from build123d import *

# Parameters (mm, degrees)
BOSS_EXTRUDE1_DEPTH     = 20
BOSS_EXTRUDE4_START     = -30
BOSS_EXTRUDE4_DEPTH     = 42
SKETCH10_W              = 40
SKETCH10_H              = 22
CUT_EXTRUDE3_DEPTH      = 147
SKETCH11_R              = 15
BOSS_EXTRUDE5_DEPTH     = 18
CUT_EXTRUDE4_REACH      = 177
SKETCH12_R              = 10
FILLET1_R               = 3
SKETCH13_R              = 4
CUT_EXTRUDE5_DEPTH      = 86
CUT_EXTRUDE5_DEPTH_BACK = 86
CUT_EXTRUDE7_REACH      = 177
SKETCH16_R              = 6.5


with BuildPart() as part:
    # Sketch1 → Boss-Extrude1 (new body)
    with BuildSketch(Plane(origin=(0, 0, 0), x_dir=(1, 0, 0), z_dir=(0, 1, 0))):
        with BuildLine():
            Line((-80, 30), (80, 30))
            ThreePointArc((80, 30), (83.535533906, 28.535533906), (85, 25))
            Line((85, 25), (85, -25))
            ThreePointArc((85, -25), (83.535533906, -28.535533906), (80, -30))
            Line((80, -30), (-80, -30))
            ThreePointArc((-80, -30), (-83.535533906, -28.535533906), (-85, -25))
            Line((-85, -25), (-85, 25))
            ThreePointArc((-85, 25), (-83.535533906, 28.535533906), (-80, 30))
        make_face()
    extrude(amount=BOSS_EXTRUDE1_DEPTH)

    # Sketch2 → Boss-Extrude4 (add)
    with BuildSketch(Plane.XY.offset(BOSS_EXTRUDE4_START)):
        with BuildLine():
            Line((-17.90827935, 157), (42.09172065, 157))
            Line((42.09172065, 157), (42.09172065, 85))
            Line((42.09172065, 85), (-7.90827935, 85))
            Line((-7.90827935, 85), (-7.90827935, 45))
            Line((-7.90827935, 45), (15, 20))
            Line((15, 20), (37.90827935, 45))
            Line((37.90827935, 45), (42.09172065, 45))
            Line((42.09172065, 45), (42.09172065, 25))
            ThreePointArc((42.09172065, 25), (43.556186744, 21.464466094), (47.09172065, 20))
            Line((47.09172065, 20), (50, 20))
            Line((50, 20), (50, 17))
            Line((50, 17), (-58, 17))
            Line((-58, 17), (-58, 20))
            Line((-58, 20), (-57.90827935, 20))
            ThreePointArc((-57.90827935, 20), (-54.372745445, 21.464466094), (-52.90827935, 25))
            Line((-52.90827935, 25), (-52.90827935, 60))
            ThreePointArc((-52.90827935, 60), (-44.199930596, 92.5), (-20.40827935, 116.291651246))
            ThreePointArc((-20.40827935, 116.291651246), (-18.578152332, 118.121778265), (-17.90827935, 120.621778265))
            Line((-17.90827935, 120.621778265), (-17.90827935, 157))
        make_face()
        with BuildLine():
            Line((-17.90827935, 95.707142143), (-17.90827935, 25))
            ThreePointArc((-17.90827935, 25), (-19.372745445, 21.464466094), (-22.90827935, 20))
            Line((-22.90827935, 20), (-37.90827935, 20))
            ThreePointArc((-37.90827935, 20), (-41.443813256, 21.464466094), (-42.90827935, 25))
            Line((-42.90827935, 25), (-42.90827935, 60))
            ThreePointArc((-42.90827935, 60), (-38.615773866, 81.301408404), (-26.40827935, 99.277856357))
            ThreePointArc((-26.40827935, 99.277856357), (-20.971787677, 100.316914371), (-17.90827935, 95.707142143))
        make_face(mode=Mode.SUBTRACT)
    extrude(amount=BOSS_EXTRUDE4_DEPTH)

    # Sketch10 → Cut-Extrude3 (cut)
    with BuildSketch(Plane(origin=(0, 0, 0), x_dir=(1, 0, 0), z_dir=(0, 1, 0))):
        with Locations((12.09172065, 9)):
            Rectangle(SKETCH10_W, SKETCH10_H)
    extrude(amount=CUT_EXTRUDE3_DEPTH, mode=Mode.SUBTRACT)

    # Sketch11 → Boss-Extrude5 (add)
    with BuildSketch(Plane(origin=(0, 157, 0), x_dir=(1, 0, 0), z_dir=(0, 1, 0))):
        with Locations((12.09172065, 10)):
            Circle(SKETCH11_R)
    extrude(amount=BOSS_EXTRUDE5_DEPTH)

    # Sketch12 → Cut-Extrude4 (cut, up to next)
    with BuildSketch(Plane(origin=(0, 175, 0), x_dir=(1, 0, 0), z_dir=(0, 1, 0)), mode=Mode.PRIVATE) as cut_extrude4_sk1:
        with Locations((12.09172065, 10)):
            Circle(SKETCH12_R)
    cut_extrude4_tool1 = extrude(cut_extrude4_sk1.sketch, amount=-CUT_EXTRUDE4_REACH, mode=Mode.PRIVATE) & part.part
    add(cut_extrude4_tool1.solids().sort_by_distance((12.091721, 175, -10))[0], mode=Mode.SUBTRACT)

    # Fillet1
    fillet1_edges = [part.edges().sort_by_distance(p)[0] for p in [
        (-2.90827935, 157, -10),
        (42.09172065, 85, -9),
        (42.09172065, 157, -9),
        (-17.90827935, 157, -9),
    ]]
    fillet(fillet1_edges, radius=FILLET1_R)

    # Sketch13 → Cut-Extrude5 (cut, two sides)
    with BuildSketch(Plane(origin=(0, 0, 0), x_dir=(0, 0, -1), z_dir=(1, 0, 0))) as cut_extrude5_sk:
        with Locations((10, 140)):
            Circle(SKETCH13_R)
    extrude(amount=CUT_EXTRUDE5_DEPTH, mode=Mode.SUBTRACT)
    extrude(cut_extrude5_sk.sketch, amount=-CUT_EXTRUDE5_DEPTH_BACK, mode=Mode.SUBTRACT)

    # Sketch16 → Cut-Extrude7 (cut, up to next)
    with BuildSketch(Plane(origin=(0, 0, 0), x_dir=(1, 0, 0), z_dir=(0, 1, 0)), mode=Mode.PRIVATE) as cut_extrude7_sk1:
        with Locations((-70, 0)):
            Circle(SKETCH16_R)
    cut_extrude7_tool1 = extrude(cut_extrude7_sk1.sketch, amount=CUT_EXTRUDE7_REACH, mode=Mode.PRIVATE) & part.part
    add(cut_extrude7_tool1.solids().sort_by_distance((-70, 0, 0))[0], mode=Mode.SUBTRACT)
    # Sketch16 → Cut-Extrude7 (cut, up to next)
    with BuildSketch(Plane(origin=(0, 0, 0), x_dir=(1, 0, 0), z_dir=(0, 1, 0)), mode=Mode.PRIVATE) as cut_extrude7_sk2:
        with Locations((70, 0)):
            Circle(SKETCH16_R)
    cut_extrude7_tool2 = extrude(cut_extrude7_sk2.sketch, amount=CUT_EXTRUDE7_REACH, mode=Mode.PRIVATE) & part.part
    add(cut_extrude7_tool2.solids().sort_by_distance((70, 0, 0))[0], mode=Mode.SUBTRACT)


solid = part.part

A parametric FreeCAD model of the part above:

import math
import FreeCAD as App
import Part
import Sketcher
Q = App.Units.Quantity


def edges_at(feature, points):
    """Names of the edges that pass closest to the given points."""
    edges = feature.Shape.Edges
    near = lambda p: min(range(len(edges)), key=lambda i: edges[i].distToShape(Part.Vertex(*p))[0])
    return sorted({f"Edge{near(p) + 1}" for p in points})

doc = App.newDocument("Part")
params = doc.addObject("Spreadsheet::Sheet", "Params")
for row, (alias, value) in enumerate([
    ("sketch1_radius", "5 mm"),
    ("sketch1_width", "160 mm"),
    ("sketch1_height", "50 mm"),
    ("pad1_length", "20 mm"),
    ("sketch2_radius", "5 mm"),
    ("sketch2_radius2", "65 mm"),
    ("sketch2_radius3", "55 mm"),
    ("sketch2_width", "60 mm"),
    ("sketch2_width2", "108 mm"),
    ("pad2_length", "42 mm"),
    ("sketch3_width", "40 mm"),
    ("sketch3_height", "22 mm"),
    ("pocket1_length", "147 mm"),
    ("sketch4_diameter", "30 mm"),
    ("pad3_length", "18 mm"),
    ("sketch5_diameter", "20 mm"),
    ("fillet_radius", "3 mm"),
    ("sketch6_diameter", "8 mm"),
    ("sketch7_diameter", "13 mm"),
    ("sketch8_diameter", "13 mm"),
], start=1):
    params.set(f"A{row}", alias)
    params.set(f"B{row}", "=" + value)
    params.setAlias(f"B{row}", alias)

body = doc.addObject("PartDesign::Body", "Body")

sketch1 = doc.addObject("Sketcher::SketchObject", "Sketch")
body.addObject(sketch1)
sketch1.AttachmentSupport = (doc.XZ_Plane, [""])
sketch1.MapMode = "FlatFace"
sketch1.addGeometry(Part.LineSegment(App.Vector(80, -30, 0), App.Vector(-80, -30, 0)), False)
sketch1.addGeometry(Part.ArcOfCircle(Part.Circle(App.Vector(-80, -25, 0), App.Vector(0, 0, 1), 5), math.radians(180), math.radians(270)), False)
sketch1.addGeometry(Part.LineSegment(App.Vector(-85, -25, 0), App.Vector(-85, 25, 0)), False)
sketch1.addGeometry(Part.ArcOfCircle(Part.Circle(App.Vector(-80, 25, 0), App.Vector(0, 0, 1), 5), math.radians(90), math.radians(180)), False)
sketch1.addGeometry(Part.LineSegment(App.Vector(-80, 30, 0), App.Vector(80, 30, 0)), False)
sketch1.addGeometry(Part.ArcOfCircle(Part.Circle(App.Vector(80, 25, 0), App.Vector(0, 0, 1), 5), math.radians(0), math.radians(90)), False)
sketch1.addGeometry(Part.LineSegment(App.Vector(85, 25, 0), App.Vector(85, -25, 0)), False)
sketch1.addGeometry(Part.ArcOfCircle(Part.Circle(App.Vector(80, -25, 0), App.Vector(0, 0, 1), 5), math.radians(-90), math.radians(0)), False)
sketch1.addConstraint(Sketcher.Constraint("Tangent", 0, 2, 1, 2))
sketch1.addConstraint(Sketcher.Constraint("Tangent", 1, 1, 2, 1))
sketch1.addConstraint(Sketcher.Constraint("Tangent", 2, 2, 3, 2))
sketch1.addConstraint(Sketcher.Constraint("Tangent", 3, 1, 4, 1))
sketch1.addConstraint(Sketcher.Constraint("Tangent", 4, 2, 5, 2))
sketch1.addConstraint(Sketcher.Constraint("Tangent", 5, 1, 6, 1))
sketch1.addConstraint(Sketcher.Constraint("Tangent", 6, 2, 7, 2))
sketch1.addConstraint(Sketcher.Constraint("Tangent", 7, 1, 0, 1))
sketch1.addConstraint(Sketcher.Constraint("Horizontal", 0))
sketch1.addConstraint(Sketcher.Constraint("Vertical", 2))
sketch1.addConstraint(Sketcher.Constraint("Horizontal", 4))
sketch1.addConstraint(Sketcher.Constraint("Vertical", 6))
sketch1.addConstraint(Sketcher.Constraint("Equal", 1, 3))
sketch1.addConstraint(Sketcher.Constraint("Equal", 3, 5))
sketch1.addConstraint(Sketcher.Constraint("Equal", 5, 7))
sketch1.addConstraint(Sketcher.Constraint("Symmetric", 1, 3, 5, 3, -1, 1))
sketch1.addConstraint(Sketcher.Constraint("Radius", 1, 5.0))
sketch1.addConstraint(Sketcher.Constraint("DistanceX", 0, 2, 0, 1, 160.0))
sketch1.addConstraint(Sketcher.Constraint("DistanceY", 2, 1, 2, 2, 50.0))
sketch1.setExpression("Constraints[16]", "Params.sketch1_radius")
sketch1.setExpression("Constraints[17]", "Params.sketch1_width")
sketch1.setExpression("Constraints[18]", "Params.sketch1_height")
pad1 = doc.addObject("PartDesign::Pad", "Pad")
body.addObject(pad1)
pad1.Profile = sketch1
pad1.setExpression("Length", "Params.pad1_length")
pad1.Reversed = True

sketch2 = doc.addObject("Sketcher::SketchObject", "Sketch001")
body.addObject(sketch2)
sketch2.AttachmentSupport = (doc.XY_Plane, [""])
sketch2.MapMode = "FlatFace"
sketch2.AttachmentOffset = App.Placement(App.Vector(0, 0, -30), App.Rotation())
sketch2.addGeometry(Part.LineSegment(App.Vector(42.09, 157, 0), App.Vector(-17.91, 157, 0)), False)
sketch2.addGeometry(Part.LineSegment(App.Vector(-17.91, 157, 0), App.Vector(-17.91, 120.62, 0)), False)
sketch2.addGeometry(Part.ArcOfCircle(Part.Circle(App.Vector(-22.91, 120.62, 0), App.Vector(0, 0, 1), 5), math.radians(-60), math.radians(0)), False)
sketch2.addGeometry(Part.ArcOfCircle(Part.Circle(App.Vector(12.09, 60, 0), App.Vector(0, 0, 1), 65), math.radians(120), math.radians(180)), False)
sketch2.addGeometry(Part.LineSegment(App.Vector(-52.91, 60, 0), App.Vector(-52.91, 25, 0)), False)
sketch2.addGeometry(Part.ArcOfCircle(Part.Circle(App.Vector(-57.91, 25, 0), App.Vector(0, 0, 1), 5), math.radians(-90), math.radians(0)), False)
sketch2.addGeometry(Part.LineSegment(App.Vector(-57.91, 20, 0), App.Vector(-58, 20, 0)), False)
sketch2.addGeometry(Part.LineSegment(App.Vector(-58, 20, 0), App.Vector(-58, 17, 0)), False)
sketch2.addGeometry(Part.LineSegment(App.Vector(-58, 17, 0), App.Vector(50, 17, 0)), False)
sketch2.addGeometry(Part.LineSegment(App.Vector(50, 17, 0), App.Vector(50, 20, 0)), False)
sketch2.addGeometry(Part.LineSegment(App.Vector(50, 20, 0), App.Vector(47.09, 20, 0)), False)
sketch2.addGeometry(Part.ArcOfCircle(Part.Circle(App.Vector(47.09, 25, 0), App.Vector(0, 0, 1), 5), math.radians(180), math.radians(270)), False)
sketch2.addGeometry(Part.LineSegment(App.Vector(42.09, 25, 0), App.Vector(42.09, 45, 0)), False)
sketch2.addGeometry(Part.LineSegment(App.Vector(42.09, 45, 0), App.Vector(37.91, 45, 0)), False)
sketch2.addGeometry(Part.LineSegment(App.Vector(37.91, 45, 0), App.Vector(15, 20, 0)), False)
sketch2.addGeometry(Part.LineSegment(App.Vector(15, 20, 0), App.Vector(-7.91, 45, 0)), False)
sketch2.addGeometry(Part.LineSegment(App.Vector(-7.91, 45, 0), App.Vector(-7.91, 85, 0)), False)
sketch2.addGeometry(Part.LineSegment(App.Vector(-7.91, 85, 0), App.Vector(42.09, 85, 0)), False)
sketch2.addGeometry(Part.LineSegment(App.Vector(42.09, 85, 0), App.Vector(42.09, 157, 0)), False)
sketch2.addGeometry(Part.LineSegment(App.Vector(-17.91, 95.71, 0), App.Vector(-17.91, 25, 0)), False)
sketch2.addGeometry(Part.ArcOfCircle(Part.Circle(App.Vector(-22.91, 25, 0), App.Vector(0, 0, 1), 5), math.radians(-90), math.radians(0)), False)
sketch2.addGeometry(Part.LineSegment(App.Vector(-22.91, 20, 0), App.Vector(-37.91, 20, 0)), False)
sketch2.addGeometry(Part.ArcOfCircle(Part.Circle(App.Vector(-37.91, 25, 0), App.Vector(0, 0, 1), 5), math.radians(180), math.radians(270)), False)
sketch2.addGeometry(Part.LineSegment(App.Vector(-42.91, 25, 0), App.Vector(-42.91, 60, 0)), False)
sketch2.addGeometry(Part.ArcOfCircle(Part.Circle(App.Vector(12.09, 60, 0), App.Vector(0, 0, 1), 55), math.radians(134), math.radians(180)), False)
sketch2.addGeometry(Part.ArcOfCircle(Part.Circle(App.Vector(-22.91, 95.71, 0), App.Vector(0, 0, 1), 5), math.radians(0), math.radians(134)), False)
sketch2.addConstraint(Sketcher.Constraint("Coincident", 0, 2, 1, 1))
sketch2.addConstraint(Sketcher.Constraint("Tangent", 1, 2, 2, 2))
sketch2.addConstraint(Sketcher.Constraint("Tangent", 2, 1, 3, 1))
sketch2.addConstraint(Sketcher.Constraint("Tangent", 3, 2, 4, 1))
sketch2.addConstraint(Sketcher.Constraint("Tangent", 4, 2, 5, 2))
sketch2.addConstraint(Sketcher.Constraint("Tangent", 5, 1, 6, 1))
sketch2.addConstraint(Sketcher.Constraint("Coincident", 6, 2, 7, 1))
sketch2.addConstraint(Sketcher.Constraint("Coincident", 7, 2, 8, 1))
sketch2.addConstraint(Sketcher.Constraint("Coincident", 8, 2, 9, 1))
sketch2.addConstraint(Sketcher.Constraint("Coincident", 9, 2, 10, 1))
sketch2.addConstraint(Sketcher.Constraint("Tangent", 10, 2, 11, 2))
sketch2.addConstraint(Sketcher.Constraint("Tangent", 11, 1, 12, 1))
sketch2.addConstraint(Sketcher.Constraint("Coincident", 12, 2, 13, 1))
sketch2.addConstraint(Sketcher.Constraint("Coincident", 13, 2, 14, 1))
sketch2.addConstraint(Sketcher.Constraint("Coincident", 14, 2, 15, 1))
sketch2.addConstraint(Sketcher.Constraint("Coincident", 15, 2, 16, 1))
sketch2.addConstraint(Sketcher.Constraint("Coincident", 16, 2, 17, 1))
sketch2.addConstraint(Sketcher.Constraint("Coincident", 17, 2, 18, 1))
sketch2.addConstraint(Sketcher.Constraint("Coincident", 18, 2, 0, 1))
sketch2.addConstraint(Sketcher.Constraint("Tangent", 19, 2, 20, 2))
sketch2.addConstraint(Sketcher.Constraint("Tangent", 20, 1, 21, 1))
sketch2.addConstraint(Sketcher.Constraint("Tangent", 21, 2, 22, 2))
sketch2.addConstraint(Sketcher.Constraint("Tangent", 22, 1, 23, 1))
sketch2.addConstraint(Sketcher.Constraint("Tangent", 23, 2, 24, 2))
sketch2.addConstraint(Sketcher.Constraint("Tangent", 24, 1, 25, 2))
sketch2.addConstraint(Sketcher.Constraint("Tangent", 25, 1, 19, 1))
sketch2.addConstraint(Sketcher.Constraint("Horizontal", 0))
sketch2.addConstraint(Sketcher.Constraint("Vertical", 1))
sketch2.addConstraint(Sketcher.Constraint("Vertical", 4))
sketch2.addConstraint(Sketcher.Constraint("Horizontal", 6))
sketch2.addConstraint(Sketcher.Constraint("Vertical", 7))
sketch2.addConstraint(Sketcher.Constraint("Horizontal", 8))
sketch2.addConstraint(Sketcher.Constraint("Vertical", 9))
sketch2.addConstraint(Sketcher.Constraint("Horizontal", 10))
sketch2.addConstraint(Sketcher.Constraint("Vertical", 12))
sketch2.addConstraint(Sketcher.Constraint("Horizontal", 13))
sketch2.addConstraint(Sketcher.Constraint("Vertical", 16))
sketch2.addConstraint(Sketcher.Constraint("Horizontal", 17))
sketch2.addConstraint(Sketcher.Constraint("Vertical", 18))
sketch2.addConstraint(Sketcher.Constraint("Vertical", 19))
sketch2.addConstraint(Sketcher.Constraint("Horizontal", 21))
sketch2.addConstraint(Sketcher.Constraint("Vertical", 23))
sketch2.addConstraint(Sketcher.Constraint("Coincident", 24, 3, 3, 3))
sketch2.addConstraint(Sketcher.Constraint("Equal", 2, 5))
sketch2.addConstraint(Sketcher.Constraint("Equal", 5, 11))
sketch2.addConstraint(Sketcher.Constraint("Equal", 11, 20))
sketch2.addConstraint(Sketcher.Constraint("Equal", 20, 22))
sketch2.addConstraint(Sketcher.Constraint("Equal", 22, 25))
sketch2.addConstraint(Sketcher.Constraint("Horizontal", 5, 3, 11, 3))
sketch2.addConstraint(Sketcher.Constraint("Horizontal", 11, 3, 20, 3))
sketch2.addConstraint(Sketcher.Constraint("Horizontal", 10, 2, 14, 2))
sketch2.addConstraint(Sketcher.Constraint("Horizontal", 13, 2, 15, 2))
sketch2.addConstraint(Sketcher.Constraint("Vertical", 2, 3, 20, 3))
sketch2.addConstraint(Sketcher.Constraint("Vertical", 12, 2, 17, 2))
sketch2.addConstraint(Sketcher.Constraint("Equal", 14, 15))
sketch2.addConstraint(Sketcher.Constraint("Radius", 2, 5.0))
sketch2.addConstraint(Sketcher.Constraint("Radius", 3, 65.0))
sketch2.addConstraint(Sketcher.Constraint("Radius", 24, 55.0))
sketch2.addConstraint(Sketcher.Constraint("DistanceX", 0, 2, 0, 1, 60.0))
sketch2.addConstraint(Sketcher.Constraint("DistanceX", 8, 1, 8, 2, 108.0))
sketch2.addConstraint(Sketcher.Constraint("DistanceX", 17, 1, 17, 2, 50.0))
sketch2.addConstraint(Sketcher.Constraint("DistanceX", 21, 2, 21, 1, 15.0))
sketch2.addConstraint(Sketcher.Constraint("DistanceY", 4, 2, 4, 1, 35.0))
sketch2.addConstraint(Sketcher.Constraint("DistanceY", 7, 2, 7, 1, 3.0))
sketch2.addConstraint(Sketcher.Constraint("DistanceY", 12, 1, 12, 2, 20.0))
sketch2.addConstraint(Sketcher.Constraint("DistanceY", 16, 1, 16, 2, 40.0))
sketch2.addConstraint(Sketcher.Constraint("DistanceY", 18, 1, 18, 2, 72.0))
sketch2.addConstraint(Sketcher.Constraint("DistanceY", -1, 1, 3, 3, 60.0))
sketch2.addConstraint(Sketcher.Constraint("DistanceX", 6, 2, -1, 1, 58.0))
sketch2.addConstraint(Sketcher.Constraint("DistanceX", -1, 1, 14, 2, 15.0))
sketch2.addConstraint(Sketcher.Constraint("Angle", 14, Q("-132.5 deg")))
sketch2.setExpression("Constraints[55]", "Params.sketch2_radius")
sketch2.setExpression("Constraints[56]", "Params.sketch2_radius2")
sketch2.setExpression("Constraints[57]", "Params.sketch2_radius3")
sketch2.setExpression("Constraints[58]", "Params.sketch2_width")
sketch2.setExpression("Constraints[59]", "Params.sketch2_width2")
pad2 = doc.addObject("PartDesign::Pad", "Pad001")
body.addObject(pad2)
pad2.Profile = sketch2
pad2.setExpression("Length", "Params.pad2_length")

sketch3 = doc.addObject("Sketcher::SketchObject", "Sketch002")
body.addObject(sketch3)
sketch3.AttachmentSupport = (doc.XZ_Plane, [""])
sketch3.MapMode = "FlatFace"
sketch3.addGeometry(Part.LineSegment(App.Vector(-8, -20, 0), App.Vector(-8, 2, 0)), False)
sketch3.addGeometry(Part.LineSegment(App.Vector(-8, 2, 0), App.Vector(32, 2, 0)), False)
sketch3.addGeometry(Part.LineSegment(App.Vector(32, 2, 0), App.Vector(32, -20, 0)), False)
sketch3.addGeometry(Part.LineSegment(App.Vector(32, -20, 0), App.Vector(-8, -20, 0)), False)
sketch3.addConstraint(Sketcher.Constraint("Coincident", 0, 2, 1, 1))
sketch3.addConstraint(Sketcher.Constraint("Coincident", 1, 2, 2, 1))
sketch3.addConstraint(Sketcher.Constraint("Coincident", 2, 2, 3, 1))
sketch3.addConstraint(Sketcher.Constraint("Coincident", 3, 2, 0, 1))
sketch3.addConstraint(Sketcher.Constraint("Vertical", 0))
sketch3.addConstraint(Sketcher.Constraint("Horizontal", 1))
sketch3.addConstraint(Sketcher.Constraint("Vertical", 2))
sketch3.addConstraint(Sketcher.Constraint("Horizontal", 3))
sketch3.addConstraint(Sketcher.Constraint("DistanceX", 1, 1, 1, 2, 40.0))
sketch3.addConstraint(Sketcher.Constraint("DistanceY", 0, 1, 0, 2, 22.0))
sketch3.addConstraint(Sketcher.Constraint("DistanceY", -1, 1, 0, 2, 2.0))
sketch3.addConstraint(Sketcher.Constraint("DistanceX", 0, 2, -1, 1, 7.908279))
sketch3.setExpression("Constraints[8]", "Params.sketch3_width")
sketch3.setExpression("Constraints[9]", "Params.sketch3_height")
pocket1 = doc.addObject("PartDesign::Pocket", "Pocket")
body.addObject(pocket1)
pocket1.Profile = sketch3
pocket1.setExpression("Length", "Params.pocket1_length")

sketch4 = doc.addObject("Sketcher::SketchObject", "Sketch003")
body.addObject(sketch4)
sketch4.AttachmentSupport = (doc.XZ_Plane, [""])
sketch4.MapMode = "FlatFace"
sketch4.AttachmentOffset = App.Placement(App.Vector(0, 0, -157), App.Rotation())
sketch4.addGeometry(Part.Circle(App.Vector(12, -10, 0), App.Vector(0, 0, 1), 15), False)
sketch4.addConstraint(Sketcher.Constraint("Diameter", 0, 30.0))
sketch4.addConstraint(Sketcher.Constraint("DistanceY", 0, 3, -1, 1, 10.0))
sketch4.addConstraint(Sketcher.Constraint("DistanceX", -1, 1, 0, 3, 12.091721))
sketch4.setExpression("Constraints[0]", "Params.sketch4_diameter")
pad3 = doc.addObject("PartDesign::Pad", "Pad002")
body.addObject(pad3)
pad3.Profile = sketch4
pad3.setExpression("Length", "Params.pad3_length")
pad3.Reversed = True

sketch5 = doc.addObject("Sketcher::SketchObject", "Sketch004")
body.addObject(sketch5)
sketch5.AttachmentSupport = (doc.XZ_Plane, [""])
sketch5.MapMode = "FlatFace"
sketch5.AttachmentOffset = App.Placement(App.Vector(0, 0, -175), App.Rotation())
sketch5.addGeometry(Part.Circle(App.Vector(12, -10, 0), App.Vector(0, 0, 1), 10), False)
sketch5.addConstraint(Sketcher.Constraint("Diameter", 0, 20.0))
sketch5.addConstraint(Sketcher.Constraint("DistanceY", 0, 3, -1, 1, 10.0))
sketch5.addConstraint(Sketcher.Constraint("DistanceX", -1, 1, 0, 3, 12.091721))
sketch5.setExpression("Constraints[0]", "Params.sketch5_diameter")
pocket2 = doc.addObject("PartDesign::Pocket", "Pocket001")
body.addObject(pocket2)
pocket2.Profile = sketch5
pocket2.Type = "UpToFirst"
pocket2.Reversed = True
doc.recompute()

fillet = doc.addObject("PartDesign::Fillet", "Fillet")
body.addObject(fillet)
fillet.Base = (pocket2, edges_at(pocket2, [
    (-2.908, 157, -10),
    (42.092, 85, -9),
    (42.092, 157, -9),
    (-17.908, 157, -9),
]))
fillet.setExpression("Radius", "Params.fillet_radius")

sketch6 = doc.addObject("Sketcher::SketchObject", "Sketch005")
body.addObject(sketch6)
sketch6.AttachmentSupport = (doc.YZ_Plane, [""])
sketch6.MapMode = "FlatFace"
sketch6.addGeometry(Part.Circle(App.Vector(140, -10, 0), App.Vector(0, 0, 1), 4), False)
sketch6.addConstraint(Sketcher.Constraint("Diameter", 0, 8.0))
sketch6.addConstraint(Sketcher.Constraint("DistanceX", -1, 1, 0, 3, 140.0))
sketch6.addConstraint(Sketcher.Constraint("DistanceY", 0, 3, -1, 1, 10.0))
sketch6.setExpression("Constraints[0]", "Params.sketch6_diameter")
pocket3 = doc.addObject("PartDesign::Pocket", "Pocket002")
body.addObject(pocket3)
pocket3.Profile = sketch6
pocket3.Type = "ThroughAll"
pocket3.Midplane = True

sketch7 = doc.addObject("Sketcher::SketchObject", "Sketch006")
body.addObject(sketch7)
sketch7.AttachmentSupport = (doc.XZ_Plane, [""])
sketch7.MapMode = "FlatFace"
sketch7.addGeometry(Part.Circle(App.Vector(-70, 0, 0), App.Vector(0, 0, 1), 6), False)
sketch7.addConstraint(Sketcher.Constraint("PointOnObject", 0, 3, -1))
sketch7.addConstraint(Sketcher.Constraint("Diameter", 0, 13.0))
sketch7.addConstraint(Sketcher.Constraint("DistanceX", 0, 3, -1, 1, 70.0))
sketch7.setExpression("Constraints[1]", "Params.sketch7_diameter")
pocket4 = doc.addObject("PartDesign::Pocket", "Pocket003")
body.addObject(pocket4)
pocket4.Profile = sketch7
pocket4.Type = "UpToFirst"

sketch8 = doc.addObject("Sketcher::SketchObject", "Sketch007")
body.addObject(sketch8)
sketch8.AttachmentSupport = (doc.XZ_Plane, [""])
sketch8.MapMode = "FlatFace"
sketch8.addGeometry(Part.Circle(App.Vector(70, 0, 0), App.Vector(0, 0, 1), 6), False)
sketch8.addConstraint(Sketcher.Constraint("PointOnObject", 0, 3, -1))
sketch8.addConstraint(Sketcher.Constraint("Diameter", 0, 13.0))
sketch8.addConstraint(Sketcher.Constraint("DistanceX", -1, 1, 0, 3, 70.0))
sketch8.setExpression("Constraints[1]", "Params.sketch8_diameter")
pocket5 = doc.addObject("PartDesign::Pocket", "Pocket004")
body.addObject(pocket5)
pocket5.Profile = sketch8
pocket5.Type = "UpToFirst"

doc.recompute()
